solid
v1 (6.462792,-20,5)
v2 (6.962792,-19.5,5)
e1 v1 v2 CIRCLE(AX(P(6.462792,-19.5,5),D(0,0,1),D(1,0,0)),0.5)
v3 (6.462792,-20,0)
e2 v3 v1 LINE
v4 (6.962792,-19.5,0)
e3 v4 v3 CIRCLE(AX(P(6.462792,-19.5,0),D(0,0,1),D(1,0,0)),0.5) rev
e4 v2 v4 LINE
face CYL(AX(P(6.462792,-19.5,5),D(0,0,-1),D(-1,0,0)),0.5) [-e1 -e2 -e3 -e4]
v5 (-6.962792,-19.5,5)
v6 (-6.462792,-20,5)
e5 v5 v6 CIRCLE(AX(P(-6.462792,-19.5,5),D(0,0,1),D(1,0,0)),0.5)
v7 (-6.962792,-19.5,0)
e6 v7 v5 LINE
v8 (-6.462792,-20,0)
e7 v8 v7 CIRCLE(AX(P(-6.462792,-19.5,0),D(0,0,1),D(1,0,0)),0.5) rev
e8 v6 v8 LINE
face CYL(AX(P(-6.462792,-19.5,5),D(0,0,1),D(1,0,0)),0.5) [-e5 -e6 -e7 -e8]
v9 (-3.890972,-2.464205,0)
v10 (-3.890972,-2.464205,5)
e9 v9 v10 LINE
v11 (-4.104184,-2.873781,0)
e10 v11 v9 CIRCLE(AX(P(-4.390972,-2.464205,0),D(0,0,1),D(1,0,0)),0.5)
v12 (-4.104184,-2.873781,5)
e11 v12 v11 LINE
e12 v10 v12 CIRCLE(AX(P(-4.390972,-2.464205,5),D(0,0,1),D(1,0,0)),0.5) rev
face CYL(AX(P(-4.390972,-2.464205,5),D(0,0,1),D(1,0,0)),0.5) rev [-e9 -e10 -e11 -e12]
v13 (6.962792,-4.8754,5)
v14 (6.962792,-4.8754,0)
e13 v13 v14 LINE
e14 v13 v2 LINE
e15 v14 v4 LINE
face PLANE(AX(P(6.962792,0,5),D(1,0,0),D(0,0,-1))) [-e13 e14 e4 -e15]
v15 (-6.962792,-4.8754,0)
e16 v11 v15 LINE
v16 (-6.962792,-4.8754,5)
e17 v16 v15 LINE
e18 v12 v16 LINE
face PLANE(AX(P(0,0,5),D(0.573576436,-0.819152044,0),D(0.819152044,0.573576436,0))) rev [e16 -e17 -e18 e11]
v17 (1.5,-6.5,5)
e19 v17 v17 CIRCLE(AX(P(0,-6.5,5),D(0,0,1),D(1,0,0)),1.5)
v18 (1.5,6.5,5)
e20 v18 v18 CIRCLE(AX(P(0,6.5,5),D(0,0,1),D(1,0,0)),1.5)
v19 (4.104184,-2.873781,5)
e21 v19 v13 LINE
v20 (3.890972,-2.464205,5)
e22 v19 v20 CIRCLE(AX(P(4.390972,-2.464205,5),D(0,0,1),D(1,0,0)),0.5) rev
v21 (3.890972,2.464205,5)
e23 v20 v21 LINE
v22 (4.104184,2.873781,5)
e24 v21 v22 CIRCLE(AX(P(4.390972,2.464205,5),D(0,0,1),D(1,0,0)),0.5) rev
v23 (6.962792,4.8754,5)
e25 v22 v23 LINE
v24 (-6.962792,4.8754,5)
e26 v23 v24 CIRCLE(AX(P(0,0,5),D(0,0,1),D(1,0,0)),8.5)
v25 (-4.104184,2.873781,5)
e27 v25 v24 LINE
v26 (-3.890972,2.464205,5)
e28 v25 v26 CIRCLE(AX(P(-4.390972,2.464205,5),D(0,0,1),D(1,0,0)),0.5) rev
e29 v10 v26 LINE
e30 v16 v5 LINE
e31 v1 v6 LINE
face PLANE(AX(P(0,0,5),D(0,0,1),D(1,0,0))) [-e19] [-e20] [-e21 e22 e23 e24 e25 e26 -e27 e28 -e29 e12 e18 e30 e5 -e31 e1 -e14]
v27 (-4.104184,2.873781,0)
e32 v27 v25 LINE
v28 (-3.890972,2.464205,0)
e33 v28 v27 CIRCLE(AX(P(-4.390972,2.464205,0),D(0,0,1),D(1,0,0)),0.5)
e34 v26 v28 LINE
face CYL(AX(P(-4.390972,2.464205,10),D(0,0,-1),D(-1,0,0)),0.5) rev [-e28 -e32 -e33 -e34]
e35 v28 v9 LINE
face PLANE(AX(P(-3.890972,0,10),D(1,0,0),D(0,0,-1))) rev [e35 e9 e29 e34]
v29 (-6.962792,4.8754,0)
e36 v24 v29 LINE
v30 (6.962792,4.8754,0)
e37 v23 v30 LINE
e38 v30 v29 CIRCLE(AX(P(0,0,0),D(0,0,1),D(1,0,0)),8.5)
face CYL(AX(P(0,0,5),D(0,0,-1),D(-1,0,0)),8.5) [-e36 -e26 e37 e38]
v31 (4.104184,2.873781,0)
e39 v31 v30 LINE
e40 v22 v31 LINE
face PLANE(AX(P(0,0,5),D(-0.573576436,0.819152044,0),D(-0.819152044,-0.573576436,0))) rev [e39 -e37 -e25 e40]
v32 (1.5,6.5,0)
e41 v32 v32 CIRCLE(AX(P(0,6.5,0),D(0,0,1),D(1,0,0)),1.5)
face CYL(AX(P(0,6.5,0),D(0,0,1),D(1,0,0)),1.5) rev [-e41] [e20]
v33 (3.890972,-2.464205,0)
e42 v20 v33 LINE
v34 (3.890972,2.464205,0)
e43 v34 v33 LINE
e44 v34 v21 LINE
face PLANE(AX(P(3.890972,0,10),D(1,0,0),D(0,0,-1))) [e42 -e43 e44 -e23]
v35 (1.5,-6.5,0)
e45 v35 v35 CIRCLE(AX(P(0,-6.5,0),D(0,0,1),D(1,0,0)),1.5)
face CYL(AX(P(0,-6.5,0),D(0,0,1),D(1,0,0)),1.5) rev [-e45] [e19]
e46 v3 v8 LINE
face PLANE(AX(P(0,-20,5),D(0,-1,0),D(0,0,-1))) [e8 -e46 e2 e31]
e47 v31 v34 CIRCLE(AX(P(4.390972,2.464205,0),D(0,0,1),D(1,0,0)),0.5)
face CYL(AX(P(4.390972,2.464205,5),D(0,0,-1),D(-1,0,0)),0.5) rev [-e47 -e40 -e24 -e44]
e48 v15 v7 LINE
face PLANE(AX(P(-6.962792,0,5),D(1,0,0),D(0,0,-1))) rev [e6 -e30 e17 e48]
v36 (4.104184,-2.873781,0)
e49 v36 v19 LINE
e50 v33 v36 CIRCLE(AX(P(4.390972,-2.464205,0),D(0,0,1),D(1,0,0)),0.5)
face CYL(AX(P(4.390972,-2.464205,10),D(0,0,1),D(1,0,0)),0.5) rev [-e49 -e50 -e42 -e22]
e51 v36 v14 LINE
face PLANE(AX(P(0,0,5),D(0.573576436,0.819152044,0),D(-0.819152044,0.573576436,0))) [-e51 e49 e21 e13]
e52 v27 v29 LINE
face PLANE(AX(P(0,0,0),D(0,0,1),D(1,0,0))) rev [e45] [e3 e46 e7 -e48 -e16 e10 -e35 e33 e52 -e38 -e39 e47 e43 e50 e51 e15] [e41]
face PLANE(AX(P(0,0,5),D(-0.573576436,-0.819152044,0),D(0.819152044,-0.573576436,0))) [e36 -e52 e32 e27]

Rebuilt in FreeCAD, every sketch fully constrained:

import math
import FreeCAD as App
import Part
import Sketcher
from FreeCAD import Vector
Q = App.Units.Quantity


def edges_at(feature, points):
    """Names of the edges that pass closest to the given points."""
    edges = feature.Shape.Edges
    near = lambda p: min(range(len(edges)), key=lambda i: edges[i].distToShape(Part.Vertex(*p))[0])
    return sorted({f"Edge{near(p) + 1}" for p in points})

doc = App.newDocument("Part")
body = doc.addObject("PartDesign::Body", "Body")

# Sketch on XY plane
sketch1 = doc.addObject("Sketcher::SketchObject", "Sketch")
body.addObject(sketch1)
sketch1.AttachmentSupport = (doc.XY_Plane, [""])
sketch1.MapMode = "FlatFace"
sketch1.addGeometry(Part.Circle(Vector(0, 0, 0), Vector(0, 0, 1), 8.5), False)
sketch1.addConstraint([
    Sketcher.Constraint("Coincident", 0, 3, -1, 1),
    Sketcher.Constraint("Diameter", 0, Q("17 mm")),
])
pad1 = doc.addObject("PartDesign::Pad", "Pad")
body.addObject(pad1)
pad1.Profile = sketch1
pad1.Length = 5

# Sketch on XY plane
sketch2 = doc.addObject("Sketcher::SketchObject", "Sketch001")
body.addObject(sketch2)
sketch2.AttachmentSupport = (doc.XY_Plane, [""])
sketch2.MapMode = "FlatFace"
sketch2.AttachmentOffset = App.Placement(Vector(0, 0, 5), App.Rotation())
sketch2.addGeometry([
    Part.Circle(Vector(0, 6.5, 0), Vector(0, 0, 1), 1.5),
    Part.Circle(Vector(0, -6.5, 0), Vector(0, 0, 1), 1.5),
], False)
sketch2.addConstraint([
    Sketcher.Constraint("Equal", 0, 1),
    Sketcher.Constraint("Symmetric", 0, 3, 1, 3, -1, 1),
    Sketcher.Constraint("PointOnObject", 0, 3, -2),
    Sketcher.Constraint("Diameter", 0, Q("3 mm")),
    Sketcher.Constraint("DistanceY", 1, 3, 0, 3, Q("13 mm")),
])
pocket1 = doc.addObject("PartDesign::Pocket", "Pocket")
body.addObject(pocket1)
pocket1.Profile = sketch2
pocket1.Length = 5

# Sketch on XY plane
sketch3 = doc.addObject("Sketcher::SketchObject", "Sketch002")
body.addObject(sketch3)
sketch3.AttachmentSupport = (doc.XY_Plane, [""])
sketch3.MapMode = "FlatFace"
sketch3.addGeometry([
    Part.LineSegment(Vector(-6.962792, 4.8754, 0), Vector(-3.890972, 2.724488, 0)),  # 0
    Part.ArcOfCircle(Part.Circle(Vector(0, 0, 0), Vector(0, 0, 1), 4.75), math.radians(145), math.radians(180)),  # 1
    Part.ArcOfCircle(Part.Circle(Vector(0, 0, 0), Vector(0, 0, 1), 4.75), math.radians(180), math.radians(215)),  # 2
    Part.LineSegment(Vector(-3.890972, -2.724488, 0), Vector(-6.962792, -4.8754, 0)),  # 3
    Part.ArcOfCircle(Part.Circle(Vector(0, 0, 0), Vector(0, 0, 1), 8.5), math.radians(-180), math.radians(-145)),  # 4
    Part.ArcOfCircle(Part.Circle(Vector(0, 0, 0), Vector(0, 0, 1), 8.5), math.radians(145), math.radians(180)),  # 5
], False)
sketch3.addConstraint([
    Sketcher.Constraint("Coincident", 0, 2, 1, 1),
    Sketcher.Constraint("Tangent", 1, 2, 2, 1),
    Sketcher.Constraint("Coincident", 2, 2, 3, 1),
    Sketcher.Constraint("Coincident", 3, 2, 4, 2),
    Sketcher.Constraint("Tangent", 4, 1, 5, 2),
    Sketcher.Constraint("Coincident", 5, 1, 0, 1),
    Sketcher.Constraint("Coincident", 1, 3, -1, 1),
    Sketcher.Constraint("Coincident", 4, 3, -1, 1),
    Sketcher.Constraint("Equal", 1, 2),
    Sketcher.Constraint("Equal", 4, 5),
    Sketcher.Constraint("PointOnObject", 1, 2, -1),
    Sketcher.Constraint("PointOnObject", 4, 1, -1),
    Sketcher.Constraint("Vertical", 0, 2, 2, 2),
    Sketcher.Constraint("Vertical", 3, 2, 5, 1),
    Sketcher.Constraint("Radius", 4, Q("8.5 mm")),
    Sketcher.Constraint("Angle", 0, Q("-35 deg")),
    Sketcher.Constraint("Radius", 1, Q("4.75 mm")),
    Sketcher.Constraint("DistanceY", 3, 2, -1, 1, Q("4.8754 mm")),
])
pocket2 = doc.addObject("PartDesign::Pocket", "Pocket001")
body.addObject(pocket2)
pocket2.Profile = sketch3
pocket2.Type = "ThroughAll"
pocket2.Reversed = True
doc.recompute()

mirrored = doc.addObject("PartDesign::Mirrored", "Mirrored")
body.addObject(mirrored)
mirrored.Originals = [pocket2]
mirrored.MirrorPlane = (doc.YZ_Plane, [""])
body.Tip = mirrored
body2 = doc.addObject("PartDesign::Body", "Body001")

# Sketch on XY plane
sketch4 = doc.addObject("Sketcher::SketchObject", "Sketch003")
body2.addObject(sketch4)
sketch4.AttachmentSupport = (doc.getObject("XY_Plane001"), [""])
sketch4.MapMode = "FlatFace"
sketch4.addGeometry([
    Part.ArcOfCircle(Part.Circle(Vector(0, 0, 0), Vector(0, 0, 1), 8.5), math.radians(-145), math.radians(-35)),
    Part.LineSegment(Vector(6.962792, -4.8754, 0), Vector(6.962792, -20, 0)),
    Part.LineSegment(Vector(6.962792, -20, 0), Vector(-6.962792, -20, 0)),
    Part.LineSegment(Vector(-6.962792, -20, 0), Vector(-6.962792, -4.8754, 0)),
], False)
sketch4.addConstraint([
    Sketcher.Constraint("Coincident", 0, 2, 1, 1),
    Sketcher.Constraint("Coincident", 1, 2, 2, 1),
    Sketcher.Constraint("Coincident", 2, 2, 3, 1),
    Sketcher.Constraint("Coincident", 3, 2, 0, 1),
    Sketcher.Constraint("Vertical", 1),
    Sketcher.Constraint("Horizontal", 2),
    Sketcher.Constraint("Vertical", 3),
    Sketcher.Constraint("Coincident", 0, 3, -1, 1),
    Sketcher.Constraint("Horizontal", 0, 2, 3, 2),
    Sketcher.Constraint("Radius", 0, Q("8.5 mm")),
    Sketcher.Constraint("DistanceY", 1, 2, -1, 1, Q("20 mm")),
    Sketcher.Constraint("DistanceY", 1, 2, 1, 1, Q("15.1246 mm")),
])
pad2 = doc.addObject("PartDesign::Pad", "Pad001")
body2.addObject(pad2)
pad2.Profile = sketch4
pad2.Length = 5
doc.recompute()

boolean = doc.addObject("PartDesign::Boolean", "Boolean")
body.addObject(boolean)
boolean.Type = "Fuse"
boolean.addObjects([body2])
doc.recompute()

fillet = doc.addObject("PartDesign::Fillet", "Fillet")
body.addObject(fillet)
fillet.Base = (boolean, edges_at(boolean, [(-6.963, -20, 2.5), (6.963, -20, 2.5)]))
fillet.Radius = 0.5

# Sketch on XY plane
sketch5 = doc.addObject("Sketcher::SketchObject", "Sketch004")
body.addObject(sketch5)
sketch5.AttachmentSupport = (doc.XY_Plane, [""])
sketch5.MapMode = "FlatFace"
sketch5.addGeometry([
    Part.LineSegment(Vector(-3.890972, 2.724488, 0), Vector(-3.890972, -2.724488, 0)),
    Part.ArcOfCircle(Part.Circle(Vector(0, 0, 0), Vector(0, 0, 1), 4.75), math.radians(145), math.radians(215)),
    Part.LineSegment(Vector(3.890972, -2.724488, 0), Vector(3.890972, 2.724488, 0)),
    Part.ArcOfCircle(Part.Circle(Vector(0, 0, 0), Vector(0, 0, 1), 4.75), math.radians(-35), math.radians(35)),
], False)
sketch5.addConstraint([
    Sketcher.Constraint("Coincident", 0, 1, 1, 1),
    Sketcher.Constraint("Coincident", 1, 2, 0, 2),
    Sketcher.Constraint("Coincident", 2, 1, 3, 1),
    Sketcher.Constraint("Coincident", 3, 2, 2, 2),
    Sketcher.Constraint("Vertical", 0),
    Sketcher.Constraint("Vertical", 2),
    Sketcher.Constraint("Coincident", 1, 3, -1, 1),
    Sketcher.Constraint("Coincident", 3, 3, -1, 1),
    Sketcher.Constraint("Equal", 1, 3),
    Sketcher.Constraint("Horizontal", 1, 2, 2, 1),
    Sketcher.Constraint("Radius", 1, Q("4.75 mm")),
    Sketcher.Constraint("DistanceY", 0, 2, 0, 1, Q("5.448976 mm")),
])
pocket3 = doc.addObject("PartDesign::Pocket", "Pocket002")
body.addObject(pocket3)
pocket3.Profile = sketch5
pocket3.Length = 10
pocket3.Reversed = True
doc.recompute()

fillet2 = doc.addObject("PartDesign::Fillet", "Fillet001")
body.addObject(fillet2)
fillet2.Base = (pocket3, edges_at(pocket3, [
    (-3.891, -2.724, 2.5),
    (-3.891, 2.724, 2.5),
    (3.891, 2.724, 2.5),
    (3.891, -2.724, 2.5),
]))
fillet2.Radius = 0.5

doc.recompute()
